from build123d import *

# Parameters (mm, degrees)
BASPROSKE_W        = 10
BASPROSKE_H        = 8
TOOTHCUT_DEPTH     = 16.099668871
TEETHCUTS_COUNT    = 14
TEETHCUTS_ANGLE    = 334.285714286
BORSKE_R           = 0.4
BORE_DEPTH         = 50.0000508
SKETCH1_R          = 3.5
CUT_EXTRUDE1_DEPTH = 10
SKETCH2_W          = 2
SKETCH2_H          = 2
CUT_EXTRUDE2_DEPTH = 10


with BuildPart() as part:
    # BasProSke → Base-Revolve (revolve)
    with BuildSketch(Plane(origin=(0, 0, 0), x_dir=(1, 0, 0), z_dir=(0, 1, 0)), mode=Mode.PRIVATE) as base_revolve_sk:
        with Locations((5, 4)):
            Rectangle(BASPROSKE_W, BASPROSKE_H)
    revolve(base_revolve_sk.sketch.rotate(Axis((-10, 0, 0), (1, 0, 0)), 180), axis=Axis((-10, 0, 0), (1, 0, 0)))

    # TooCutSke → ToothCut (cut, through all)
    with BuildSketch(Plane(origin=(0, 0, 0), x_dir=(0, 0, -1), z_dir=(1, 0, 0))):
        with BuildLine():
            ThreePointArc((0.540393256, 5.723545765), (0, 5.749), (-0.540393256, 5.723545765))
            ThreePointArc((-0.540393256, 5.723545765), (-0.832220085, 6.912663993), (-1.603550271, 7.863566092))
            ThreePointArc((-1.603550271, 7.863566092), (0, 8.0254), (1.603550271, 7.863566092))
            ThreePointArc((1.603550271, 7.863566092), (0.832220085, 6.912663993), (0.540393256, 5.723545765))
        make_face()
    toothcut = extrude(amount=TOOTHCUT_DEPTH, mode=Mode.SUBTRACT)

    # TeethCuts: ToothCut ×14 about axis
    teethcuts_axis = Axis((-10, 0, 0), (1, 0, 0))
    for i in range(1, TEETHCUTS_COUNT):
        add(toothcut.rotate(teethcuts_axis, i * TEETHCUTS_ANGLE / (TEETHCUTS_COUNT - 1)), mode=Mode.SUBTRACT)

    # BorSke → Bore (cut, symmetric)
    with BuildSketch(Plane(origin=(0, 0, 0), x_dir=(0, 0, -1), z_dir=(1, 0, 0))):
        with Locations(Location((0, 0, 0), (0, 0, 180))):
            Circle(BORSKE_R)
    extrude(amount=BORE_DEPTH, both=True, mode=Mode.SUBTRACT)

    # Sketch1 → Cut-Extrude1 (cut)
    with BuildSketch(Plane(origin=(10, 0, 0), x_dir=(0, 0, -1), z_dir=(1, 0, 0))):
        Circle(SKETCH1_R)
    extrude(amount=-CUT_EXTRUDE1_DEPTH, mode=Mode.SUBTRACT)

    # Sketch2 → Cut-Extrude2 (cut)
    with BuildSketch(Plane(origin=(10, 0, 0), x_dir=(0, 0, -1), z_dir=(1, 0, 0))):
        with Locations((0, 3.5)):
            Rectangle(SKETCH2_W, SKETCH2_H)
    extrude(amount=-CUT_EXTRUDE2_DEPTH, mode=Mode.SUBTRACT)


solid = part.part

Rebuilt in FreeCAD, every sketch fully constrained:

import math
import FreeCAD as App
import Part
import Sketcher

V = App.Vector

doc = App.newDocument("Part")
body = doc.addObject("PartDesign::Body", "Body")

sketch1 = doc.addObject("Sketcher::SketchObject", "Sketch")
body.addObject(sketch1)
sketch1.AttachmentSupport = (doc.XZ_Plane, [""])
sketch1.MapMode = "FlatFace"
sketch1.addGeometry([
    Part.LineSegment(V(0, -8, 0), V(0, 0, 0)),
    Part.LineSegment(V(0, 0, 0), V(10, 0, 0)),
    Part.LineSegment(V(10, 0, 0), V(10, -8, 0)),
    Part.LineSegment(V(10, -8, 0), V(0, -8, 0)),
], False)
sketch1.addConstraint([
    Sketcher.Constraint("Coincident", 0, 2, 1, 1),
    Sketcher.Constraint("Coincident", 1, 2, 2, 1),
    Sketcher.Constraint("Coincident", 2, 2, 3, 1),
    Sketcher.Constraint("Coincident", 3, 2, 0, 1),
    Sketcher.Constraint("Vertical", 0),
    Sketcher.Constraint("Horizontal", 1),
    Sketcher.Constraint("Vertical", 2),
    Sketcher.Constraint("Horizontal", 3),
    Sketcher.Constraint("Coincident", 0, 2, -1, 1),
    Sketcher.Constraint("DistanceX", 1, 1, 1, 2, 10.0),
    Sketcher.Constraint("DistanceY", 0, 1, 0, 2, 8.0),
])
revolution = doc.addObject("PartDesign::Revolution", "Revolution")
body.addObject(revolution)
revolution.Profile = sketch1
revolution.ReferenceAxis = (sketch1, ["H_Axis"])
revolution.Angle = 360

sketch2 = doc.addObject("Sketcher::SketchObject", "Sketch001")
body.addObject(sketch2)
sketch2.AttachmentSupport = (doc.YZ_Plane, [""])
sketch2.MapMode = "FlatFace"
sketch2.addGeometry([
    Part.ArcOfCircle(Part.Circle(V(0, 0, 0), V(0, 0, 1), 5.749), math.radians(-5.393639), math.radians(5.393639)),
    Part.ArcOfCircle(Part.Circle(V(5.666894, -3.33982, 0), V(0, 0, 1), 2.8), math.radians(38.323172), math.radians(88.840674)),
    Part.ArcOfCircle(Part.Circle(V(0, 0, 0), V(0, 0, 1), 8.0254), math.radians(-11.525813), math.radians(11.525813)),
    Part.ArcOfCircle(Part.Circle(V(5.666894, 3.33982, 0), V(0, 0, 1), 2.8), math.radians(-88.840674), math.radians(-38.323172)),
], False)
sketch2.addConstraint([
    Sketcher.Constraint("Coincident", 0, 1, 1, 2),
    Sketcher.Constraint("Coincident", 1, 1, 2, 1),
    Sketcher.Constraint("Coincident", 2, 2, 3, 2),
    Sketcher.Constraint("Coincident", 3, 1, 0, 2),
    Sketcher.Constraint("Coincident", 0, 3, -1, 1),
    Sketcher.Constraint("Coincident", 2, 3, -1, 1),
    Sketcher.Constraint("Equal", 1, 3),
    Sketcher.Constraint("Symmetric", 1, 3, 3, 3, -1),
    Sketcher.Constraint("Radius", 1, 2.8),
    Sketcher.Constraint("Radius", 0, 5.749),
    Sketcher.Constraint("Radius", 2, 8.0254),
    Sketcher.Constraint("DistanceY", 1, 1, 2, 2, 3.207101),
    Sketcher.Constraint("DistanceY", 1, 3, -1, 1, 3.33982),
])
pocket1 = doc.addObject("PartDesign::Pocket", "Pocket")
body.addObject(pocket1)
pocket1.Profile = sketch2
pocket1.Type = "ThroughAll"
pocket1.Reversed = True
doc.recompute()

polarpattern = doc.addObject("PartDesign::PolarPattern", "PolarPattern")
body.addObject(polarpattern)
polarpattern.Originals = [pocket1]
polarpattern.Axis = (doc.X_Axis, [""])
polarpattern.Angle = 360
polarpattern.Occurrences = 14
body.Tip = polarpattern

sketch3 = doc.addObject("Sketcher::SketchObject", "Sketch002")
body.addObject(sketch3)
sketch3.AttachmentSupport = (doc.YZ_Plane, [""])
sketch3.MapMode = "FlatFace"
sketch3.addGeometry(Part.Circle(V(0, 0, 0), V(0, 0, 1), 0.4), False)
sketch3.addConstraint([
    Sketcher.Constraint("Coincident", 0, 3, -1, 1),
    Sketcher.Constraint("Diameter", 0, 0.8),
])
pocket2 = doc.addObject("PartDesign::Pocket", "Pocket001")
body.addObject(pocket2)
pocket2.Profile = sketch3
pocket2.Length = 100.000102
pocket2.Midplane = True

sketch4 = doc.addObject("Sketcher::SketchObject", "Sketch003")
body.addObject(sketch4)
sketch4.AttachmentSupport = (doc.YZ_Plane, [""])
sketch4.MapMode = "FlatFace"
sketch4.AttachmentOffset = App.Placement(V(0, 0, 10), App.Rotation())
sketch4.addGeometry(Part.Circle(V(0, 0, 0), V(0, 0, 1), 3.5), False)
sketch4.addConstraint([
    Sketcher.Constraint("Coincident", 0, 3, -1, 1),
    Sketcher.Constraint("Diameter", 0, 7.0),
])
pocket3 = doc.addObject("PartDesign::Pocket", "Pocket002")
body.addObject(pocket3)
pocket3.Profile = sketch4
pocket3.Length = 10

sketch5 = doc.addObject("Sketcher::SketchObject", "Sketch004")
body.addObject(sketch5)
sketch5.AttachmentSupport = (doc.YZ_Plane, [""])
sketch5.MapMode = "FlatFace"
sketch5.AttachmentOffset = App.Placement(V(0, 0, 10), App.Rotation())
sketch5.addGeometry([
    Part.LineSegment(V(4.5, 1, 0), V(2.5, 1, 0)),
    Part.LineSegment(V(2.5, 1, 0), V(2.5, -1, 0)),
    Part.LineSegment(V(2.5, -1, 0), V(4.5, -1, 0)),
    Part.LineSegment(V(4.5, -1, 0), V(4.5, 1, 0)),
], False)
sketch5.addConstraint([
    Sketcher.Constraint("Coincident", 0, 2, 1, 1),
    Sketcher.Constraint("Coincident", 1, 2, 2, 1),
    Sketcher.Constraint("Coincident", 2, 2, 3, 1),
    Sketcher.Constraint("Coincident", 3, 2, 0, 1),
    Sketcher.Constraint("Horizontal", 0),
    Sketcher.Constraint("Vertical", 1),
    Sketcher.Constraint("Horizontal", 2),
    Sketcher.Constraint("Vertical", 3),
    Sketcher.Constraint("Equal", 2, 1),
    Sketcher.Constraint("DistanceX", 0, 2, 0, 1, 2.0),
    Sketcher.Constraint("DistanceY", -1, 1, 0, 2, 1.0),
    Sketcher.Constraint("DistanceX", -1, 1, 0, 2, 2.5),
])
pocket4 = doc.addObject("PartDesign::Pocket", "Pocket003")
body.addObject(pocket4)
pocket4.Profile = sketch5
pocket4.Length = 10

doc.recompute()
